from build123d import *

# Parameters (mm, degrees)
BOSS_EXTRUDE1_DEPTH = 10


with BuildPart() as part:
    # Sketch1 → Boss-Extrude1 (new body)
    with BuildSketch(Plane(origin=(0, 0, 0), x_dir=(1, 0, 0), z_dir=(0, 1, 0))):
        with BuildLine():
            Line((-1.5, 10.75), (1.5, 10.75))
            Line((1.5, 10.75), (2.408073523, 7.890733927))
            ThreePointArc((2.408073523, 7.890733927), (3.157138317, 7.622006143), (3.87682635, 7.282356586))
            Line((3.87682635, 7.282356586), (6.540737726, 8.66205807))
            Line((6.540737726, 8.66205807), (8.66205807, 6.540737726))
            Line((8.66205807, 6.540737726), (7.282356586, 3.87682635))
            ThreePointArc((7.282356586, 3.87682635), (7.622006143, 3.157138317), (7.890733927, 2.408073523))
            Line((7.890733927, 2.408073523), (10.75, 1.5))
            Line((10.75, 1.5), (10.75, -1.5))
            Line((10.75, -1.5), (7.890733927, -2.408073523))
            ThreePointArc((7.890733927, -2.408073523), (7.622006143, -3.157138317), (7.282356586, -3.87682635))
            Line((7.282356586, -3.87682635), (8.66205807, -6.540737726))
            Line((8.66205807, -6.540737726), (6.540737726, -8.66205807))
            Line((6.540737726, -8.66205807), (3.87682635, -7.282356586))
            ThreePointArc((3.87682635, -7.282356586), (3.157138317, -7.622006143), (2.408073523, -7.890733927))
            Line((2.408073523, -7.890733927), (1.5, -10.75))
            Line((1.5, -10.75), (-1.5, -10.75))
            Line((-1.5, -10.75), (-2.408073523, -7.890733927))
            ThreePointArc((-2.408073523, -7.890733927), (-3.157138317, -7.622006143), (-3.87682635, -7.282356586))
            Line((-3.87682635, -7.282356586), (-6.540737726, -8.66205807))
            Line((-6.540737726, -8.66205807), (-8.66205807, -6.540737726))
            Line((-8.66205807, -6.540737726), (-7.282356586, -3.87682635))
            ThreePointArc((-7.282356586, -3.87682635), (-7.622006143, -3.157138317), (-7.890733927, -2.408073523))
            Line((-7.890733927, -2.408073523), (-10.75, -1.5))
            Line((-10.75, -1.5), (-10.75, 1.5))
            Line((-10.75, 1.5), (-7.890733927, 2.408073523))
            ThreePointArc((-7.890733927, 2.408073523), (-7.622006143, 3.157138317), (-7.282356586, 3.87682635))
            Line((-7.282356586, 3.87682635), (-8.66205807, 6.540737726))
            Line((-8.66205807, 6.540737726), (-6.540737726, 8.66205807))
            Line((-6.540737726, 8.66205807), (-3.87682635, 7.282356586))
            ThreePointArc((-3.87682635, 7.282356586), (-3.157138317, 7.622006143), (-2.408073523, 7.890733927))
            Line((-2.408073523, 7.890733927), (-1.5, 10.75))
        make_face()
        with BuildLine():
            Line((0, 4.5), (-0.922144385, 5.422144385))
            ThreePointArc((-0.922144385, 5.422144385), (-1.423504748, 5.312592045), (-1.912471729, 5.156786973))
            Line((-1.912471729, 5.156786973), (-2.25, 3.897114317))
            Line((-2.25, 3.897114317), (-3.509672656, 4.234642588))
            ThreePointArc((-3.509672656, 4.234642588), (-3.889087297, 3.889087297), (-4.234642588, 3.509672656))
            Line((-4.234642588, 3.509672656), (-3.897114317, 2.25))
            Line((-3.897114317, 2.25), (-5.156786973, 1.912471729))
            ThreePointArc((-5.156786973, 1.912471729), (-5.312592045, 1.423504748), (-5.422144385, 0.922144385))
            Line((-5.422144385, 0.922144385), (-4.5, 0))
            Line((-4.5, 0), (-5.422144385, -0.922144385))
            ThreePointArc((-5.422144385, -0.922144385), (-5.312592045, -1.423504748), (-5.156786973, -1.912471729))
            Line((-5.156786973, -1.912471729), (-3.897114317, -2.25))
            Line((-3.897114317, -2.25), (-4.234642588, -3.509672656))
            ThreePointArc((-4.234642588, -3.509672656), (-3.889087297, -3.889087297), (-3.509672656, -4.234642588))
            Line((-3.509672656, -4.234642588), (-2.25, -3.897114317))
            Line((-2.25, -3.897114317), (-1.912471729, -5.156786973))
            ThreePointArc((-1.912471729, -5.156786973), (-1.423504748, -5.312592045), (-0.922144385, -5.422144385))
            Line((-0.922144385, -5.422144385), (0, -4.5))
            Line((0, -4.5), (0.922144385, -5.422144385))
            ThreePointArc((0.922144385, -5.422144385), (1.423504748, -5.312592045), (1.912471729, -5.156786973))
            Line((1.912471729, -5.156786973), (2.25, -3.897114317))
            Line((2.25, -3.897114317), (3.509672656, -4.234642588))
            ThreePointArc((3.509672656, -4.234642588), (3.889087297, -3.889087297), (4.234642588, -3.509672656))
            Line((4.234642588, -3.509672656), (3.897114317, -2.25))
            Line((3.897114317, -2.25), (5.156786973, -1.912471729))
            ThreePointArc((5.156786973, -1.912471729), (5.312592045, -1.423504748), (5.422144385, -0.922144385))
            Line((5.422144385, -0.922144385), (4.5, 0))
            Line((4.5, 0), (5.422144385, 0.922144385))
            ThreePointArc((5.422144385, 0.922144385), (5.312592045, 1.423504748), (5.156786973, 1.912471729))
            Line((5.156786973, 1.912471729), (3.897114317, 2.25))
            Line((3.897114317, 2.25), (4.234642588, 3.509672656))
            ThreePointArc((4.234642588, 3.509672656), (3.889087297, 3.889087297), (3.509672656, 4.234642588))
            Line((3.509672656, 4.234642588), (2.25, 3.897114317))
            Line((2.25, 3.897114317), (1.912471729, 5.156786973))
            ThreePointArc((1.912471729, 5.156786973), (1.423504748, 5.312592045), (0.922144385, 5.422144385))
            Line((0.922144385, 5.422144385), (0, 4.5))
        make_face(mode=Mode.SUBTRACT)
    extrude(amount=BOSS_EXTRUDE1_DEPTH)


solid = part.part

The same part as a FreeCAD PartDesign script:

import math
import FreeCAD as App
import Part
import Sketcher

V = App.Vector
Q = App.Units.Quantity

doc = App.newDocument("Part")
body = doc.addObject("PartDesign::Body", "Body")

sketch1 = body.newObject("Sketcher::SketchObject", "Sketch")
sketch1.AttachmentSupport = (doc.getObject("XZ_Plane"), [""])
sketch1.MapMode = "FlatFace"
sketch1.addGeometry(Part.LineSegment(V(1.5, -10.8, 0), V(-1.5, -10.8, 0)), False)
sketch1.addGeometry(Part.LineSegment(V(-1.5, -10.8, 0), V(-2.4, -7.9, 0)), False)
sketch1.addGeometry(Part.ArcOfCircle(Part.Circle(V(0, 0, 0), V(0, 0, 1), 8.2), math.radians(-118.03), math.radians(-106.97)), False)
sketch1.addGeometry(Part.LineSegment(V(-3.9, -7.3, 0), V(-6.5, -8.7, 0)), False)
sketch1.addGeometry(Part.LineSegment(V(-6.5, -8.7, 0), V(-8.7, -6.5, 0)), False)
sketch1.addGeometry(Part.LineSegment(V(-8.7, -6.5, 0), V(-7.3, -3.9, 0)), False)
sketch1.addGeometry(Part.ArcOfCircle(Part.Circle(V(0, 0, 0), V(0, 0, 1), 8.2), math.radians(-163.03), math.radians(-151.97)), False)
sketch1.addGeometry(Part.LineSegment(V(-7.9, -2.4, 0), V(-10.8, -1.5, 0)), False)
sketch1.addGeometry(Part.LineSegment(V(-10.8, -1.5, 0), V(-10.8, 1.5, 0)), False)
sketch1.addGeometry(Part.LineSegment(V(-10.8, 1.5, 0), V(-7.9, 2.4, 0)), False)
sketch1.addGeometry(Part.ArcOfCircle(Part.Circle(V(0, 0, 0), V(0, 0, 1), 8.2), math.radians(151.97), math.radians(163.03)), False)
sketch1.addGeometry(Part.LineSegment(V(-7.3, 3.9, 0), V(-8.7, 6.5, 0)), False)
sketch1.addGeometry(Part.LineSegment(V(-8.7, 6.5, 0), V(-6.5, 8.7, 0)), False)
sketch1.addGeometry(Part.LineSegment(V(-6.5, 8.7, 0), V(-3.9, 7.3, 0)), False)
sketch1.addGeometry(Part.ArcOfCircle(Part.Circle(V(0, 0, 0), V(0, 0, 1), 8.2), math.radians(106.97), math.radians(118.03)), False)
sketch1.addGeometry(Part.LineSegment(V(-2.4, 7.9, 0), V(-1.5, 10.8, 0)), False)
sketch1.addGeometry(Part.LineSegment(V(-1.5, 10.8, 0), V(1.5, 10.8, 0)), False)
sketch1.addGeometry(Part.LineSegment(V(1.5, 10.8, 0), V(2.4, 7.9, 0)), False)
sketch1.addGeometry(Part.ArcOfCircle(Part.Circle(V(0, 0, 0), V(0, 0, 1), 8.2), math.radians(61.97), math.radians(73.03)), False)
sketch1.addGeometry(Part.LineSegment(V(3.9, 7.3, 0), V(6.5, 8.7, 0)), False)
sketch1.addGeometry(Part.LineSegment(V(6.5, 8.7, 0), V(8.7, 6.5, 0)), False)
sketch1.addGeometry(Part.LineSegment(V(8.7, 6.5, 0), V(7.3, 3.9, 0)), False)
sketch1.addGeometry(Part.ArcOfCircle(Part.Circle(V(0, 0, 0), V(0, 0, 1), 8.2), math.radians(16.97), math.radians(28.03)), False)
sketch1.addGeometry(Part.LineSegment(V(7.9, 2.4, 0), V(10.8, 1.5, 0)), False)
sketch1.addGeometry(Part.LineSegment(V(10.8, 1.5, 0), V(10.8, -1.5, 0)), False)
sketch1.addGeometry(Part.LineSegment(V(10.8, -1.5, 0), V(7.9, -2.4, 0)), False)
sketch1.addGeometry(Part.ArcOfCircle(Part.Circle(V(0, 0, 0), V(0, 0, 1), 8.2), math.radians(-28.03), math.radians(-16.97)), False)
sketch1.addGeometry(Part.LineSegment(V(7.3, -3.9, 0), V(8.7, -6.5, 0)), False)
sketch1.addGeometry(Part.LineSegment(V(8.7, -6.5, 0), V(6.5, -8.7, 0)), False)
sketch1.addGeometry(Part.LineSegment(V(6.5, -8.7, 0), V(3.9, -7.3, 0)), False)
sketch1.addGeometry(Part.ArcOfCircle(Part.Circle(V(0, 0, 0), V(0, 0, 1), 8.2), math.radians(-73.03), math.radians(-61.97)), False)
sketch1.addGeometry(Part.LineSegment(V(2.4, -7.9, 0), V(1.5, -10.8, 0)), False)
sketch1.addGeometry(Part.LineSegment(V(0, -4.5, 0), V(0.9, -5.4, 0)), False)
sketch1.addGeometry(Part.ArcOfCircle(Part.Circle(V(0, 0, 0), V(0, 0, 1), 5.5), math.radians(-80.35), math.radians(-69.65)), False)
sketch1.addGeometry(Part.LineSegment(V(1.9, -5.2, 0), V(2.2, -3.9, 0)), False)
sketch1.addGeometry(Part.LineSegment(V(2.2, -3.9, 0), V(3.5, -4.2, 0)), False)
sketch1.addGeometry(Part.ArcOfCircle(Part.Circle(V(0, 0, 0), V(0, 0, 1), 5.5), math.radians(-50.35), math.radians(-39.65)), False)
sketch1.addGeometry(Part.LineSegment(V(4.2, -3.5, 0), V(3.9, -2.2, 0)), False)
sketch1.addGeometry(Part.LineSegment(V(3.9, -2.2, 0), V(5.2, -1.9, 0)), False)
sketch1.addGeometry(Part.ArcOfCircle(Part.Circle(V(0, 0, 0), V(0, 0, 1), 5.5), math.radians(-20.35), math.radians(-9.65)), False)
sketch1.addGeometry(Part.LineSegment(V(5.4, -0.9, 0), V(4.5, 0, 0)), False)
sketch1.addGeometry(Part.LineSegment(V(4.5, 0, 0), V(5.4, 0.9, 0)), False)
sketch1.addGeometry(Part.ArcOfCircle(Part.Circle(V(0, 0, 0), V(0, 0, 1), 5.5), math.radians(9.65), math.radians(20.35)), False)
sketch1.addGeometry(Part.LineSegment(V(5.2, 1.9, 0), V(3.9, 2.2, 0)), False)
sketch1.addGeometry(Part.LineSegment(V(3.9, 2.2, 0), V(4.2, 3.5, 0)), False)
sketch1.addGeometry(Part.ArcOfCircle(Part.Circle(V(0, 0, 0), V(0, 0, 1), 5.5), math.radians(39.65), math.radians(50.35)), False)
sketch1.addGeometry(Part.LineSegment(V(3.5, 4.2, 0), V(2.2, 3.9, 0)), False)
sketch1.addGeometry(Part.LineSegment(V(2.2, 3.9, 0), V(1.9, 5.2, 0)), False)
sketch1.addGeometry(Part.ArcOfCircle(Part.Circle(V(0, 0, 0), V(0, 0, 1), 5.5), math.radians(69.65), math.radians(80.35)), False)
sketch1.addGeometry(Part.LineSegment(V(0.9, 5.4, 0), V(0, 4.5, 0)), False)
sketch1.addGeometry(Part.LineSegment(V(0, 4.5, 0), V(-0.9, 5.4, 0)), False)
sketch1.addGeometry(Part.ArcOfCircle(Part.Circle(V(0, 0, 0), V(0, 0, 1), 5.5), math.radians(99.65), math.radians(110.35)), False)
sketch1.addGeometry(Part.LineSegment(V(-1.9, 5.2, 0), V(-2.2, 3.9, 0)), False)
sketch1.addGeometry(Part.LineSegment(V(-2.2, 3.9, 0), V(-3.5, 4.2, 0)), False)
sketch1.addGeometry(Part.ArcOfCircle(Part.Circle(V(0, 0, 0), V(0, 0, 1), 5.5), math.radians(129.65), math.radians(140.35)), False)
sketch1.addGeometry(Part.LineSegment(V(-4.2, 3.5, 0), V(-3.9, 2.2, 0)), False)
sketch1.addGeometry(Part.LineSegment(V(-3.9, 2.2, 0), V(-5.2, 1.9, 0)), False)
sketch1.addGeometry(Part.ArcOfCircle(Part.Circle(V(0, 0, 0), V(0, 0, 1), 5.5), math.radians(159.65), math.radians(170.35)), False)
sketch1.addGeometry(Part.LineSegment(V(-5.4, 0.9, 0), V(-4.5, 0, 0)), False)
sketch1.addGeometry(Part.LineSegment(V(-4.5, 0, 0), V(-5.4, -0.9, 0)), False)
sketch1.addGeometry(Part.ArcOfCircle(Part.Circle(V(0, 0, 0), V(0, 0, 1), 5.5), math.radians(-170.35), math.radians(-159.65)), False)
sketch1.addGeometry(Part.LineSegment(V(-5.2, -1.9, 0), V(-3.9, -2.2, 0)), False)
sketch1.addGeometry(Part.LineSegment(V(-3.9, -2.2, 0), V(-4.2, -3.5, 0)), False)
sketch1.addGeometry(Part.ArcOfCircle(Part.Circle(V(0, 0, 0), V(0, 0, 1), 5.5), math.radians(-140.35), math.radians(-129.65)), False)
sketch1.addGeometry(Part.LineSegment(V(-3.5, -4.2, 0), V(-2.2, -3.9, 0)), False)
sketch1.addGeometry(Part.LineSegment(V(-2.2, -3.9, 0), V(-1.9, -5.2, 0)), False)
sketch1.addGeometry(Part.ArcOfCircle(Part.Circle(V(0, 0, 0), V(0, 0, 1), 5.5), math.radians(-110.35), math.radians(-99.65)), False)
sketch1.addGeometry(Part.LineSegment(V(-0.9, -5.4, 0), V(0, -4.5, 0)), False)
sketch1.addConstraint(Sketcher.Constraint("Coincident", 0, 2, 1, 1))
sketch1.addConstraint(Sketcher.Constraint("Coincident", 1, 2, 2, 2))
sketch1.addConstraint(Sketcher.Constraint("Coincident", 2, 1, 3, 1))
sketch1.addConstraint(Sketcher.Constraint("Coincident", 3, 2, 4, 1))
sketch1.addConstraint(Sketcher.Constraint("Coincident", 4, 2, 5, 1))
sketch1.addConstraint(Sketcher.Constraint("Coincident", 5, 2, 6, 2))
sketch1.addConstraint(Sketcher.Constraint("Coincident", 6, 1, 7, 1))
sketch1.addConstraint(Sketcher.Constraint("Coincident", 7, 2, 8, 1))
sketch1.addConstraint(Sketcher.Constraint("Coincident", 8, 2, 9, 1))
sketch1.addConstraint(Sketcher.Constraint("Coincident", 9, 2, 10, 2))
sketch1.addConstraint(Sketcher.Constraint("Coincident", 10, 1, 11, 1))
sketch1.addConstraint(Sketcher.Constraint("Coincident", 11, 2, 12, 1))
sketch1.addConstraint(Sketcher.Constraint("Coincident", 12, 2, 13, 1))
sketch1.addConstraint(Sketcher.Constraint("Coincident", 13, 2, 14, 2))
sketch1.addConstraint(Sketcher.Constraint("Coincident", 14, 1, 15, 1))
sketch1.addConstraint(Sketcher.Constraint("Coincident", 15, 2, 16, 1))
sketch1.addConstraint(Sketcher.Constraint("Coincident", 16, 2, 17, 1))
sketch1.addConstraint(Sketcher.Constraint("Coincident", 17, 2, 18, 2))
sketch1.addConstraint(Sketcher.Constraint("Coincident", 18, 1, 19, 1))
sketch1.addConstraint(Sketcher.Constraint("Coincident", 19, 2, 20, 1))
sketch1.addConstraint(Sketcher.Constraint("Coincident", 20, 2, 21, 1))
sketch1.addConstraint(Sketcher.Constraint("Coincident", 21, 2, 22, 2))
sketch1.addConstraint(Sketcher.Constraint("Coincident", 22, 1, 23, 1))
sketch1.addConstraint(Sketcher.Constraint("Coincident", 23, 2, 24, 1))
sketch1.addConstraint(Sketcher.Constraint("Coincident", 24, 2, 25, 1))
sketch1.addConstraint(Sketcher.Constraint("Coincident", 25, 2, 26, 2))
sketch1.addConstraint(Sketcher.Constraint("Coincident", 26, 1, 27, 1))
sketch1.addConstraint(Sketcher.Constraint("Coincident", 27, 2, 28, 1))
sketch1.addConstraint(Sketcher.Constraint("Coincident", 28, 2, 29, 1))
sketch1.addConstraint(Sketcher.Constraint("Coincident", 29, 2, 30, 2))
sketch1.addConstraint(Sketcher.Constraint("Coincident", 30, 1, 31, 1))
sketch1.addConstraint(Sketcher.Constraint("Coincident", 31, 2, 0, 1))
sketch1.addConstraint(Sketcher.Constraint("Coincident", 32, 2, 33, 1))
sketch1.addConstraint(Sketcher.Constraint("Coincident", 33, 2, 34, 1))
sketch1.addConstraint(Sketcher.Constraint("Coincident", 34, 2, 35, 1))
sketch1.addConstraint(Sketcher.Constraint("Coincident", 35, 2, 36, 1))
sketch1.addConstraint(Sketcher.Constraint("Coincident", 36, 2, 37, 1))
sketch1.addConstraint(Sketcher.Constraint("Coincident", 37, 2, 38, 1))
sketch1.addConstraint(Sketcher.Constraint("Coincident", 38, 2, 39, 1))
sketch1.addConstraint(Sketcher.Constraint("Coincident", 39, 2, 40, 1))
sketch1.addConstraint(Sketcher.Constraint("Coincident", 40, 2, 41, 1))
sketch1.addConstraint(Sketcher.Constraint("Coincident", 41, 2, 42, 1))
sketch1.addConstraint(Sketcher.Constraint("Coincident", 42, 2, 43, 1))
sketch1.addConstraint(Sketcher.Constraint("Coincident", 43, 2, 44, 1))
sketch1.addConstraint(Sketcher.Constraint("Coincident", 44, 2, 45, 1))
sketch1.addConstraint(Sketcher.Constraint("Coincident", 45, 2, 46, 1))
sketch1.addConstraint(Sketcher.Constraint("Coincident", 46, 2, 47, 1))
sketch1.addConstraint(Sketcher.Constraint("Coincident", 47, 2, 48, 1))
sketch1.addConstraint(Sketcher.Constraint("Coincident", 48, 2, 49, 1))
sketch1.addConstraint(Sketcher.Constraint("Coincident", 49, 2, 50, 1))
sketch1.addConstraint(Sketcher.Constraint("Coincident", 50, 2, 51, 1))
sketch1.addConstraint(Sketcher.Constraint("Coincident", 51, 2, 52, 1))
sketch1.addConstraint(Sketcher.Constraint("Coincident", 52, 2, 53, 1))
sketch1.addConstraint(Sketcher.Constraint("Coincident", 53, 2, 54, 1))
sketch1.addConstraint(Sketcher.Constraint("Coincident", 54, 2, 55, 1))
sketch1.addConstraint(Sketcher.Constraint("Coincident", 55, 2, 56, 1))
sketch1.addConstraint(Sketcher.Constraint("Coincident", 56, 2, 57, 1))
sketch1.addConstraint(Sketcher.Constraint("Coincident", 57, 2, 58, 1))
sketch1.addConstraint(Sketcher.Constraint("Coincident", 58, 2, 59, 1))
sketch1.addConstraint(Sketcher.Constraint("Coincident", 59, 2, 60, 1))
sketch1.addConstraint(Sketcher.Constraint("Coincident", 60, 2, 61, 1))
sketch1.addConstraint(Sketcher.Constraint("Coincident", 61, 2, 62, 1))
sketch1.addConstraint(Sketcher.Constraint("Coincident", 62, 2, 63, 1))
sketch1.addConstraint(Sketcher.Constraint("Coincident", 63, 2, 64, 1))
sketch1.addConstraint(Sketcher.Constraint("Coincident", 64, 2, 65, 1))
sketch1.addConstraint(Sketcher.Constraint("Coincident", 65, 2, 66, 1))
sketch1.addConstraint(Sketcher.Constraint("Coincident", 66, 2, 67, 1))
sketch1.addConstraint(Sketcher.Constraint("Coincident", 67, 2, 32, 1))
sketch1.addConstraint(Sketcher.Constraint("Horizontal", 0))
sketch1.addConstraint(Sketcher.Constraint("Vertical", 8))
sketch1.addConstraint(Sketcher.Constraint("Horizontal", 16))
sketch1.addConstraint(Sketcher.Constraint("Vertical", 24))
sketch1.addConstraint(Sketcher.Constraint("Coincident", 2, 3, -1, 1))
sketch1.addConstraint(Sketcher.Constraint("Coincident", 6, 3, -1, 1))
sketch1.addConstraint(Sketcher.Constraint("Coincident", 10, 3, -1, 1))
sketch1.addConstraint(Sketcher.Constraint("Coincident", 14, 3, -1, 1))
sketch1.addConstraint(Sketcher.Constraint("Coincident", 18, 3, -1, 1))
sketch1.addConstraint(Sketcher.Constraint("Coincident", 22, 3, -1, 1))
sketch1.addConstraint(Sketcher.Constraint("Coincident", 26, 3, -1, 1))
sketch1.addConstraint(Sketcher.Constraint("Coincident", 30, 3, -1, 1))
sketch1.addConstraint(Sketcher.Constraint("Coincident", 33, 3, -1, 1))
sketch1.addConstraint(Sketcher.Constraint("Coincident", 36, 3, -1, 1))
sketch1.addConstraint(Sketcher.Constraint("Coincident", 39, 3, -1, 1))
sketch1.addConstraint(Sketcher.Constraint("Coincident", 42, 3, -1, 1))
sketch1.addConstraint(Sketcher.Constraint("Coincident", 45, 3, -1, 1))
sketch1.addConstraint(Sketcher.Constraint("Coincident", 48, 3, -1, 1))
sketch1.addConstraint(Sketcher.Constraint("Coincident", 51, 3, -1, 1))
sketch1.addConstraint(Sketcher.Constraint("Coincident", 54, 3, -1, 1))
sketch1.addConstraint(Sketcher.Constraint("Coincident", 57, 3, -1, 1))
sketch1.addConstraint(Sketcher.Constraint("Coincident", 60, 3, -1, 1))
sketch1.addConstraint(Sketcher.Constraint("Coincident", 63, 3, -1, 1))
sketch1.addConstraint(Sketcher.Constraint("Coincident", 66, 3, -1, 1))
sketch1.addConstraint(Sketcher.Constraint("Equal", 2, 6))
sketch1.addConstraint(Sketcher.Constraint("Equal", 6, 10))
sketch1.addConstraint(Sketcher.Constraint("Equal", 10, 14))
sketch1.addConstraint(Sketcher.Constraint("Equal", 14, 18))
sketch1.addConstraint(Sketcher.Constraint("Equal", 18, 22))
sketch1.addConstraint(Sketcher.Constraint("Equal", 22, 26))
sketch1.addConstraint(Sketcher.Constraint("Equal", 26, 30))
sketch1.addConstraint(Sketcher.Constraint("Equal", 33, 36))
sketch1.addConstraint(Sketcher.Constraint("Equal", 36, 39))
sketch1.addConstraint(Sketcher.Constraint("Equal", 39, 42))
sketch1.addConstraint(Sketcher.Constraint("Equal", 42, 45))
sketch1.addConstraint(Sketcher.Constraint("Equal", 45, 48))
sketch1.addConstraint(Sketcher.Constraint("Equal", 48, 51))
sketch1.addConstraint(Sketcher.Constraint("Equal", 51, 54))
sketch1.addConstraint(Sketcher.Constraint("Equal", 54, 57))
sketch1.addConstraint(Sketcher.Constraint("Equal", 57, 60))
sketch1.addConstraint(Sketcher.Constraint("Equal", 60, 63))
sketch1.addConstraint(Sketcher.Constraint("Equal", 63, 66))
sketch1.addConstraint(Sketcher.Constraint("Symmetric", 0, 2, 16, 2, -1, 1))
sketch1.addConstraint(Sketcher.Constraint("Symmetric", 3, 2, 19, 2, -1, 1))
sketch1.addConstraint(Sketcher.Constraint("Symmetric", 4, 2, 20, 2, -1, 1))
sketch1.addConstraint(Sketcher.Constraint("Symmetric", 7, 2, 23, 2, -1, 1))
sketch1.addConstraint(Sketcher.Constraint("Symmetric", 11, 2, 27, 2, -1, 1))
sketch1.addConstraint(Sketcher.Constraint("Symmetric", 12, 2, 28, 2, -1, 1))
sketch1.addConstraint(Sketcher.Constraint("Symmetric", 34, 2, 52, 2, -1, 1))
sketch1.addConstraint(Sketcher.Constraint("Symmetric", 37, 2, 55, 2, -1, 1))
sketch1.addConstraint(Sketcher.Constraint("Symmetric", 40, 2, 58, 2, -1, 1))
sketch1.addConstraint(Sketcher.Constraint("Symmetric", 43, 2, 61, 2, -1, 1))
sketch1.addConstraint(Sketcher.Constraint("Symmetric", 46, 2, 64, 2, -1, 1))
sketch1.addConstraint(Sketcher.Constraint("Symmetric", 49, 2, 67, 2, -1, 1))
sketch1.addConstraint(Sketcher.Constraint("Symmetric", 12, 2, 19, 2, -2))
sketch1.addConstraint(Sketcher.Constraint("Symmetric", 11, 2, 20, 2, -2))
sketch1.addConstraint(Sketcher.Constraint("Symmetric", 46, 2, 52, 2, -2))
sketch1.addConstraint(Sketcher.Constraint("Symmetric", 43, 2, 55, 2, -2))
sketch1.addConstraint(Sketcher.Constraint("PointOnObject", 40, 2, -1))
sketch1.addConstraint(Sketcher.Constraint("PointOnObject", 49, 2, -2))
sketch1.addConstraint(Sketcher.Constraint("Perpendicular", 1, 9))
sketch1.addConstraint(Sketcher.Constraint("Perpendicular", 3, 11))
sketch1.addConstraint(Sketcher.Constraint("Perpendicular", 4, 12))
sketch1.addConstraint(Sketcher.Constraint("Perpendicular", 5, 13))
sketch1.addConstraint(Sketcher.Constraint("Perpendicular", 7, 15))
sketch1.addConstraint(Sketcher.Constraint("Perpendicular", 9, 17))
sketch1.addConstraint(Sketcher.Constraint("Perpendicular", 11, 19))
sketch1.addConstraint(Sketcher.Constraint("Perpendicular", 13, 21))
sketch1.addConstraint(Sketcher.Constraint("Perpendicular", 15, 23))
sketch1.addConstraint(Sketcher.Constraint("Perpendicular", 17, 25))
sketch1.addConstraint(Sketcher.Constraint("Perpendicular", 19, 27))
sketch1.addConstraint(Sketcher.Constraint("Perpendicular", 21, 29))
sketch1.addConstraint(Sketcher.Constraint("Perpendicular", 23, 31))
sketch1.addConstraint(Sketcher.Constraint("Perpendicular", 28, 32))
sketch1.addConstraint(Sketcher.Constraint("Perpendicular", 34, 35))
sketch1.addConstraint(Sketcher.Constraint("Perpendicular", 37, 38))
sketch1.addConstraint(Sketcher.Constraint("Parallel", 32, 40))
sketch1.addConstraint(Sketcher.Constraint("Perpendicular", 40, 41))
sketch1.addConstraint(Sketcher.Constraint("Parallel", 35, 43))
sketch1.addConstraint(Sketcher.Constraint("Perpendicular", 43, 44))
sketch1.addConstraint(Sketcher.Constraint("Parallel", 38, 46))
sketch1.addConstraint(Sketcher.Constraint("Perpendicular", 46, 47))
sketch1.addConstraint(Sketcher.Constraint("Parallel", 41, 49))
sketch1.addConstraint(Sketcher.Constraint("Perpendicular", 49, 50))
sketch1.addConstraint(Sketcher.Constraint("Parallel", 44, 52))
sketch1.addConstraint(Sketcher.Constraint("Perpendicular", 52, 53))
sketch1.addConstraint(Sketcher.Constraint("Parallel", 47, 55))
sketch1.addConstraint(Sketcher.Constraint("Perpendicular", 55, 56))
sketch1.addConstraint(Sketcher.Constraint("Parallel", 50, 58))
sketch1.addConstraint(Sketcher.Constraint("Perpendicular", 58, 59))
sketch1.addConstraint(Sketcher.Constraint("Parallel", 53, 61))
sketch1.addConstraint(Sketcher.Constraint("Perpendicular", 61, 62))
sketch1.addConstraint(Sketcher.Constraint("Parallel", 56, 64))
sketch1.addConstraint(Sketcher.Constraint("Perpendicular", 64, 65))
sketch1.addConstraint(Sketcher.Constraint("Parallel", 59, 67))
sketch1.addConstraint(Sketcher.Constraint("Horizontal", 14, 1, 17, 2))
sketch1.addConstraint(Sketcher.Constraint("Horizontal", 13, 2, 18, 1))
sketch1.addConstraint(Sketcher.Constraint("Horizontal", 9, 2, 22, 1))
sketch1.addConstraint(Sketcher.Constraint("Horizontal", 8, 2, 23, 2))
sketch1.addConstraint(Sketcher.Constraint("Horizontal", 7, 2, 24, 2))
sketch1.addConstraint(Sketcher.Constraint("Horizontal", 1, 2, 30, 1))
sketch1.addConstraint(Sketcher.Constraint("Horizontal", 47, 2, 51, 2))
sketch1.addConstraint(Sketcher.Constraint("Equal", 16, 8))
sketch1.addConstraint(Sketcher.Constraint("Equal", 1, 3))
sketch1.addConstraint(Sketcher.Constraint("Equal", 3, 4))
sketch1.addConstraint(Sketcher.Constraint("Equal", 4, 5))
sketch1.addConstraint(Sketcher.Constraint("Equal", 5, 7))
sketch1.addConstraint(Sketcher.Constraint("Equal", 32, 34))
sketch1.addConstraint(Sketcher.Constraint("Equal", 34, 35))
sketch1.addConstraint(Sketcher.Constraint("Equal", 35, 37))
sketch1.addConstraint(Sketcher.Constraint("Equal", 37, 38))
sketch1.addConstraint(Sketcher.Constraint("Equal", 38, 40))
sketch1.addConstraint(Sketcher.Constraint("Radius", 33, 5.5))
sketch1.addConstraint(Sketcher.Constraint("DistanceX", 0, 2, 0, 1, 3.0))
sketch1.addConstraint(Sketcher.Constraint("Angle", 34, Q("75 deg")))
sketch1.addConstraint(Sketcher.Constraint("Radius", 2, 8.25))
sketch1.addConstraint(Sketcher.Constraint("Distance", 1, 3.0))
sketch1.addConstraint(Sketcher.Constraint("DistanceX", -1, 1, 40, 2, 4.5))
sketch1.addConstraint(Sketcher.Constraint("DistanceY", 0, 2, -1, 1, 10.75))
sketch1.addConstraint(Sketcher.Constraint("DistanceY", 3, 2, -1, 1, 8.662058))
pad1 = body.newObject("PartDesign::Pad", "Pad")
pad1.Profile = sketch1
pad1.Length = 10
pad1.Reversed = True

doc.recompute()
